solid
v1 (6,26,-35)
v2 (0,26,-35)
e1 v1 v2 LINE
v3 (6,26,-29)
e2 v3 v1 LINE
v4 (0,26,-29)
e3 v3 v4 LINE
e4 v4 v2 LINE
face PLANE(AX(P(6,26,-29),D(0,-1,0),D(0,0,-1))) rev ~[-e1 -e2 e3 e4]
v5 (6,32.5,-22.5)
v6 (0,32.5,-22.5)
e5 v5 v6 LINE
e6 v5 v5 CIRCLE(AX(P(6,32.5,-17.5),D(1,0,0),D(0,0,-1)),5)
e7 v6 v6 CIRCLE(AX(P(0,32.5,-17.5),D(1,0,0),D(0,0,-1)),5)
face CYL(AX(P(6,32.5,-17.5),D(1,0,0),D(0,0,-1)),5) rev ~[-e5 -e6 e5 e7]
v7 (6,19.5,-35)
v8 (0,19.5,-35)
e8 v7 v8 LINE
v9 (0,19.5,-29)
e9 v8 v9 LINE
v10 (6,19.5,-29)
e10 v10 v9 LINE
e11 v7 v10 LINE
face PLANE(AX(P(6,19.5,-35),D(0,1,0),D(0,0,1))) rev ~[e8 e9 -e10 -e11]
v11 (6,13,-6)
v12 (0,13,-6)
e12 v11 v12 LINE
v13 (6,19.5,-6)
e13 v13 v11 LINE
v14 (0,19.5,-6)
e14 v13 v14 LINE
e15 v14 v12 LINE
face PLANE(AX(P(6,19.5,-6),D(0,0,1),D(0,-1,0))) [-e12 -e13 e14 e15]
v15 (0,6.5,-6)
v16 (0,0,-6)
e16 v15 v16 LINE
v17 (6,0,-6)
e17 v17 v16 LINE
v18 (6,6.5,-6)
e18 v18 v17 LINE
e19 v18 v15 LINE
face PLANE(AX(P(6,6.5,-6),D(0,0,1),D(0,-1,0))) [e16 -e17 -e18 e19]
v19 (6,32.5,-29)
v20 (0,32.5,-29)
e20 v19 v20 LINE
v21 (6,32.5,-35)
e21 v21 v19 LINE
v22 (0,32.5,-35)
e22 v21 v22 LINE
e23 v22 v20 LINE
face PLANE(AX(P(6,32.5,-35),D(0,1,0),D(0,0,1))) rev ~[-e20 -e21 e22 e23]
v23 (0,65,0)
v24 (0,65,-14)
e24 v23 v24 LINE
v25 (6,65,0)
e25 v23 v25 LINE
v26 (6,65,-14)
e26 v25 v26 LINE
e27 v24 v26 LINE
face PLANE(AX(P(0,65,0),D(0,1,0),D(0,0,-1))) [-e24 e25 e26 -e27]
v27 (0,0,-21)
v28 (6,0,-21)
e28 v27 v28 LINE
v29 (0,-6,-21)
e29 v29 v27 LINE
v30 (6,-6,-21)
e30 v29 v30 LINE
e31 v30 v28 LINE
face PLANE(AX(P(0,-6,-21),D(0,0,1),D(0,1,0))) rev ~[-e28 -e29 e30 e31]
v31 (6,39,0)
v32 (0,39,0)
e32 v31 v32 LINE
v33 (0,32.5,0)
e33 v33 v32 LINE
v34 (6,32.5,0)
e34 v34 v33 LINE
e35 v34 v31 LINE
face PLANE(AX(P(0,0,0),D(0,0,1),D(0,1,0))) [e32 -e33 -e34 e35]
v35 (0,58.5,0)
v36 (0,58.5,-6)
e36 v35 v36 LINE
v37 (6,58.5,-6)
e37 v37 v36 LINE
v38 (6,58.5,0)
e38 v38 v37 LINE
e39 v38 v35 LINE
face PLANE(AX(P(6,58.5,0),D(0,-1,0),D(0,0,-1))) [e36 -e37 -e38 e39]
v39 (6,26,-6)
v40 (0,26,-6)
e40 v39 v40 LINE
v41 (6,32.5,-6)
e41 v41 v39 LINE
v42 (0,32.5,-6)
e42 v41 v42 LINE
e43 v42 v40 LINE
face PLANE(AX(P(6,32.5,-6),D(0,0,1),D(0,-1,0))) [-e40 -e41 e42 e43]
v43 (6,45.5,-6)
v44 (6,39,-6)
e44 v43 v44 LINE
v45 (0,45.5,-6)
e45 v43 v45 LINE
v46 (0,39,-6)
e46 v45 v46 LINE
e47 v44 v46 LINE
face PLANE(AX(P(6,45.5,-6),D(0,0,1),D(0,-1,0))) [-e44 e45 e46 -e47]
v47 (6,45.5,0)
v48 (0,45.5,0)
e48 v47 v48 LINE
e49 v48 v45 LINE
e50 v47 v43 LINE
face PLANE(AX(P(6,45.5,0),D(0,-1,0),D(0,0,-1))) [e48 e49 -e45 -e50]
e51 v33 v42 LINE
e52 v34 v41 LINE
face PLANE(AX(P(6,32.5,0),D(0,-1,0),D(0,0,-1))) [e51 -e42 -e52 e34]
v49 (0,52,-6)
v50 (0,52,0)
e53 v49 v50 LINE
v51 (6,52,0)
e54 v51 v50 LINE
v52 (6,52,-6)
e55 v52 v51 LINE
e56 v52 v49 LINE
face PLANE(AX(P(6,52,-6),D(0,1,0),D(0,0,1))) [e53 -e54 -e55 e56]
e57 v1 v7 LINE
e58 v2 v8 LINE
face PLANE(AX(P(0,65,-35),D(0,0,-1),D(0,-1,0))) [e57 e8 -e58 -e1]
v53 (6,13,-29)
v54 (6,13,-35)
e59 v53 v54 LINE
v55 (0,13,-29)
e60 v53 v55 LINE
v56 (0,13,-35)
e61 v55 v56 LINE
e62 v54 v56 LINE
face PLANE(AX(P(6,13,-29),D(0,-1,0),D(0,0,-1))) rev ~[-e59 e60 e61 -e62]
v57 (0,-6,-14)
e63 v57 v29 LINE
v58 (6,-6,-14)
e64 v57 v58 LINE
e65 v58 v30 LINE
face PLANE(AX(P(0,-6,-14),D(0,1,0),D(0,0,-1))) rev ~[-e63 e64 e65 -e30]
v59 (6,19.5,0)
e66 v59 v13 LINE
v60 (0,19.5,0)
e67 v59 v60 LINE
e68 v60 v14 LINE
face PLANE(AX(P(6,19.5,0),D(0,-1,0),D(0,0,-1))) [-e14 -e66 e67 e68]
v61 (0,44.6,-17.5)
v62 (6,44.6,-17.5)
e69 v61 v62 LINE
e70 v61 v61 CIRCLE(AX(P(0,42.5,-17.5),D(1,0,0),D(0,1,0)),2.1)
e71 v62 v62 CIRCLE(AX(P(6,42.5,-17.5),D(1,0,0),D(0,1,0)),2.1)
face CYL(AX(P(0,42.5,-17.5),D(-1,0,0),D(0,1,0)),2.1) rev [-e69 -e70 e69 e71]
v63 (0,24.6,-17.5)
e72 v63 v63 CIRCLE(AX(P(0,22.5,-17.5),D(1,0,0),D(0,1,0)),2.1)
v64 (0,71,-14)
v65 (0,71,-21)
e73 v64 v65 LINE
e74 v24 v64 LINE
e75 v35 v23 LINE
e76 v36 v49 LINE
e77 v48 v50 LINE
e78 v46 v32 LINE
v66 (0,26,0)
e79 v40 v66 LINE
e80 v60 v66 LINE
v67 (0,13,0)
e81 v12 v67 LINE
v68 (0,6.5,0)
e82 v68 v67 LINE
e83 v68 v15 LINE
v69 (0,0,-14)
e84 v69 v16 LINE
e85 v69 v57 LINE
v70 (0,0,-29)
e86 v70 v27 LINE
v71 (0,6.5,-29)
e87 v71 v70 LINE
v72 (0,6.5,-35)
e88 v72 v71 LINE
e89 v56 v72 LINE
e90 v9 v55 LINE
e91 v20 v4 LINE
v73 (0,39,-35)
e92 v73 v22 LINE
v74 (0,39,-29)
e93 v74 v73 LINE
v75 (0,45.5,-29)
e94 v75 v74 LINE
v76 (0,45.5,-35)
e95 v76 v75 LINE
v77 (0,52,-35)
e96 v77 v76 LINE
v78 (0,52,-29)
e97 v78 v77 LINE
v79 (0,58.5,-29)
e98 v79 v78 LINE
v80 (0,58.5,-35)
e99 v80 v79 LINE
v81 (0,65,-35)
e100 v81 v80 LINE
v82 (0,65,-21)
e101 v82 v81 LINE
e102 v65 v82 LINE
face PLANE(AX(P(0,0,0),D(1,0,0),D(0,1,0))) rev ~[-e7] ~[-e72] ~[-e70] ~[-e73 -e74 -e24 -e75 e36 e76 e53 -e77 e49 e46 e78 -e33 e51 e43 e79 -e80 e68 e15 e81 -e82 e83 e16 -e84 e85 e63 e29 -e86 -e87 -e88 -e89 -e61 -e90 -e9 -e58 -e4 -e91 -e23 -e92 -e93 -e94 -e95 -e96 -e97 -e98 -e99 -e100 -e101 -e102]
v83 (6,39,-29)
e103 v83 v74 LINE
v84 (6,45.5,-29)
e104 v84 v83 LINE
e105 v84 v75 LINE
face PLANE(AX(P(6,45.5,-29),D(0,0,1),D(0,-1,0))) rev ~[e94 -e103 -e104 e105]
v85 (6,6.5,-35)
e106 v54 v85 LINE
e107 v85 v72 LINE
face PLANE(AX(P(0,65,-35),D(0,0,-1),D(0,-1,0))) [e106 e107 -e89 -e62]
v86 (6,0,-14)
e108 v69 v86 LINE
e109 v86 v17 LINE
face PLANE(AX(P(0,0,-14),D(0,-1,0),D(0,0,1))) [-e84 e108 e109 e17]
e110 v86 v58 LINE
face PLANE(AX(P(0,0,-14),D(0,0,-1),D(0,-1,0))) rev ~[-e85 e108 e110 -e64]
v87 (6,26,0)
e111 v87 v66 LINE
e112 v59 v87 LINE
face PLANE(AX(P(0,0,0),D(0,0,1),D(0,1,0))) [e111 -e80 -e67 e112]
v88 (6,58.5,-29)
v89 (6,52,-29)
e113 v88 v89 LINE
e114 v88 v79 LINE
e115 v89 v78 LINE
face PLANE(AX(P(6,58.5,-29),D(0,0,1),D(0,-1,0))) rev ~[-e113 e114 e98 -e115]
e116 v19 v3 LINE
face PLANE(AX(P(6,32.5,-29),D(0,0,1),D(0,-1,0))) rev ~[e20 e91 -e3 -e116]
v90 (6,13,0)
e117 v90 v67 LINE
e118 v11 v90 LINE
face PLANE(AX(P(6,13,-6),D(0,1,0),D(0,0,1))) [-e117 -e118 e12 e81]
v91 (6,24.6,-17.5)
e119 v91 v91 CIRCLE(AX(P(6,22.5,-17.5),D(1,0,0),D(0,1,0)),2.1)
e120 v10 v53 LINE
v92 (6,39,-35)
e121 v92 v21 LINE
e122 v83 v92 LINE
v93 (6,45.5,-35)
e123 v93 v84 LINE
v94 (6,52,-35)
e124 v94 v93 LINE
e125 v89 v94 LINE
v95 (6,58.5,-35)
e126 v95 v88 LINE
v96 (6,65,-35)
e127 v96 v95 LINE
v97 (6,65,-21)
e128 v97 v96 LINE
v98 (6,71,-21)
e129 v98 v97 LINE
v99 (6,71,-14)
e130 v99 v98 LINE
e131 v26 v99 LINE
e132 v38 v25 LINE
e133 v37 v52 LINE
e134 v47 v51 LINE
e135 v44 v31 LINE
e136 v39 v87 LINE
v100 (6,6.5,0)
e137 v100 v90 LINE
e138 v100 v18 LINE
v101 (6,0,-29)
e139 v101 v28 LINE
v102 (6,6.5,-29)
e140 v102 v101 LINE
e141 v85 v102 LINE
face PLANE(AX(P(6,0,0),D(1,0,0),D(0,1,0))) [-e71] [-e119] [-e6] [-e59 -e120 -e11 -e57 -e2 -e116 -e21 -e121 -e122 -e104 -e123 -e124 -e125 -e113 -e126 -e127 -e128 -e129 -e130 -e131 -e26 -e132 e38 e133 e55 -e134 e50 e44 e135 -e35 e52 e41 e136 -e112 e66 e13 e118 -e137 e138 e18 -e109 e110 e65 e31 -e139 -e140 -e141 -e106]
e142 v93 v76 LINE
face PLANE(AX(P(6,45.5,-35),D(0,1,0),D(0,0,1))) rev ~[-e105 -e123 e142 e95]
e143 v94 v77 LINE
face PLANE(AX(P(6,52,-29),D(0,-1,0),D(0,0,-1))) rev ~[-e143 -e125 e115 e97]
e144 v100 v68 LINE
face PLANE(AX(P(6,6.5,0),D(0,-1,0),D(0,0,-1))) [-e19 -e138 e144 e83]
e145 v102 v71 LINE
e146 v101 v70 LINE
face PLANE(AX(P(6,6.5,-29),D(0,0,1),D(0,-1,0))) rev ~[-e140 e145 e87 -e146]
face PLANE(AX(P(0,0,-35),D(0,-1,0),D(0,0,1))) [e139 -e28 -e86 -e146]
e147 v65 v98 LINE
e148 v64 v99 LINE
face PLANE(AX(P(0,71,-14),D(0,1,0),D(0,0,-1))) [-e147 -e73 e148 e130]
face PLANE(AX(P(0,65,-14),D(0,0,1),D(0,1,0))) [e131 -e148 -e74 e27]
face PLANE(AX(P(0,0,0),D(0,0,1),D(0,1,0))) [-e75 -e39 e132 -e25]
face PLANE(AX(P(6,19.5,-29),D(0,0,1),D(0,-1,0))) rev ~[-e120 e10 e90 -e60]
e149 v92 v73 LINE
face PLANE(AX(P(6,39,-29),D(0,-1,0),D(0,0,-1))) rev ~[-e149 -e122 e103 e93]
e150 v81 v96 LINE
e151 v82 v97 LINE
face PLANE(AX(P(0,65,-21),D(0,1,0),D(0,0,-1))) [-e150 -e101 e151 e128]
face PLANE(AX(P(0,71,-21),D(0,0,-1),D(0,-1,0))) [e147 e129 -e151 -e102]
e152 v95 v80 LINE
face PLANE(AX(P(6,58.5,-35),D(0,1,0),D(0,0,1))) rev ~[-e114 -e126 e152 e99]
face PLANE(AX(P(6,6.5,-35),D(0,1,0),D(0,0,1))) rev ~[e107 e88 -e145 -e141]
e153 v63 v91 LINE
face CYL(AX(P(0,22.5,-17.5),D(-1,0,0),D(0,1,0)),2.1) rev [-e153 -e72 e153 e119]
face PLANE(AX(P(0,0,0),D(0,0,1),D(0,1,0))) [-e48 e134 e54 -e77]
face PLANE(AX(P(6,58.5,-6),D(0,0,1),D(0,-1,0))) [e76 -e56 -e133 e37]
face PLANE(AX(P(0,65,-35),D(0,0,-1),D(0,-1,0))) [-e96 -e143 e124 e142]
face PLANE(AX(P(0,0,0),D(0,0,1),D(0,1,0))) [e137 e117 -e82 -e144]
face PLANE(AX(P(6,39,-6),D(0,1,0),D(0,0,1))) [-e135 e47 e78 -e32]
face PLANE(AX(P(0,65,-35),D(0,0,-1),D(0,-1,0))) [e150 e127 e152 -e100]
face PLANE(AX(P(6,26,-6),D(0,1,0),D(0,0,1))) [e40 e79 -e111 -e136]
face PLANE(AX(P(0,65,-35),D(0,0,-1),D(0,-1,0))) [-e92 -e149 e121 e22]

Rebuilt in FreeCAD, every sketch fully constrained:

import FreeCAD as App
import Part
import Sketcher
Q = App.Units.Quantity


def add_polygon(sketch, points):
    """Adds a closed chain of lines whose ends are joined by coincident constraints."""
    first, n = sketch.GeometryCount, len(points)
    for a, b in zip(points, points[1:] + points[:1]):
        sketch.addGeometry(Part.LineSegment(App.Vector(*a, 0), App.Vector(*b, 0)), False)
    for i in range(n):
        sketch.addConstraint(Sketcher.Constraint("Coincident", first + i, 2, first + (i + 1) % n, 1))

doc = App.newDocument("Part")
body = doc.addObject("PartDesign::Body", "Body")

# Sketch on YZ plane
sketch1 = doc.addObject("Sketcher::SketchObject", "Sketch")
body.addObject(sketch1)
sketch1.AttachmentSupport = (doc.YZ_Plane, [""])
sketch1.MapMode = "FlatFace"
add_polygon(sketch1, [(65, 0), (0, 0), (0, -14), (-6, -14), (-6, -21), (0, -21), (0, -35), (65, -35), (65, -21), (71, -21), (71, -14), (65, -14)])  # lines 0-11
sketch1.addGeometry(Part.Circle(App.Vector(22.5, -17.5, 0), App.Vector(0, 0, 1), 2.1), False)  # 12
sketch1.addGeometry(Part.Circle(App.Vector(42.5, -17.5, 0), App.Vector(0, 0, 1), 2.1), False)  # 13
sketch1.addConstraint(Sketcher.Constraint("Horizontal", 0))
sketch1.addConstraint(Sketcher.Constraint("Vertical", 1))
sketch1.addConstraint(Sketcher.Constraint("Horizontal", 2))
sketch1.addConstraint(Sketcher.Constraint("Vertical", 3))
sketch1.addConstraint(Sketcher.Constraint("Horizontal", 4))
sketch1.addConstraint(Sketcher.Constraint("Vertical", 5))
sketch1.addConstraint(Sketcher.Constraint("Horizontal", 6))
sketch1.addConstraint(Sketcher.Constraint("Vertical", 7))
sketch1.addConstraint(Sketcher.Constraint("Horizontal", 8))
sketch1.addConstraint(Sketcher.Constraint("Vertical", 9))
sketch1.addConstraint(Sketcher.Constraint("Horizontal", 10))
sketch1.addConstraint(Sketcher.Constraint("Vertical", 11))
sketch1.addConstraint(Sketcher.Constraint("Coincident", 0, 2, -1, 1))
sketch1.addConstraint(Sketcher.Constraint("Equal", 12, 13))
sketch1.addConstraint(Sketcher.Constraint("PointOnObject", 4, 2, -2))
sketch1.addConstraint(Sketcher.Constraint("Horizontal", 12, 3, 13, 3))
sketch1.addConstraint(Sketcher.Constraint("Horizontal", 4, 2, 7, 2))
sketch1.addConstraint(Sketcher.Constraint("Horizontal", 2, 2, 9, 2))
sketch1.addConstraint(Sketcher.Constraint("Vertical", 7, 2, 10, 2))
sketch1.addConstraint(Sketcher.Constraint("Equal", 4, 8))
sketch1.addConstraint(Sketcher.Constraint("Equal", 1, 5))
sketch1.addConstraint(Sketcher.Constraint("Diameter", 12, Q("4.2 mm")))
sketch1.addConstraint(Sketcher.Constraint("DistanceX", 0, 2, 0, 1, Q("65 mm")))
sketch1.addConstraint(Sketcher.Constraint("DistanceX", 2, 2, 2, 1, Q("6 mm")))
sketch1.addConstraint(Sketcher.Constraint("DistanceY", 3, 2, 3, 1, Q("7 mm")))
sketch1.addConstraint(Sketcher.Constraint("DistanceY", 5, 2, -1, 1, Q("35 mm")))
sketch1.addConstraint(Sketcher.Constraint("DistanceX", 12, 3, 13, 3, Q("20 mm")))
sketch1.addConstraint(Sketcher.Constraint("DistanceX", -1, 1, 12, 3, Q("22.5 mm")))
sketch1.addConstraint(Sketcher.Constraint("DistanceY", 12, 3, -1, 1, Q("17.5 mm")))
pad1 = doc.addObject("PartDesign::Pad", "Pad")
body.addObject(pad1)
pad1.Profile = sketch1
pad1.Length = 6

# Sketch on YZ plane
sketch2 = doc.addObject("Sketcher::SketchObject", "Sketch001")
body.addObject(sketch2)
sketch2.AttachmentSupport = (doc.YZ_Plane, [""])
sketch2.MapMode = "FlatFace"
sketch2.AttachmentOffset = App.Placement(App.Vector(0, 0, 6), App.Rotation())
add_polygon(sketch2, [(58.5, -6), (58.5, 0), (52, 0), (52, -6)])  # lines 0-3
add_polygon(sketch2, [(52, -29), (52, -35), (58.5, -35), (58.5, -29)])  # lines 4-7
sketch2.addConstraint(Sketcher.Constraint("Vertical", 0))
sketch2.addConstraint(Sketcher.Constraint("Horizontal", 1))
sketch2.addConstraint(Sketcher.Constraint("Vertical", 2))
sketch2.addConstraint(Sketcher.Constraint("Horizontal", 3))
sketch2.addConstraint(Sketcher.Constraint("Vertical", 4))
sketch2.addConstraint(Sketcher.Constraint("Horizontal", 5))
sketch2.addConstraint(Sketcher.Constraint("Vertical", 6))
sketch2.addConstraint(Sketcher.Constraint("Horizontal", 7))
sketch2.addConstraint(Sketcher.Constraint("PointOnObject", 0, 2, -1))
sketch2.addConstraint(Sketcher.Constraint("Vertical", 2, 2, 4, 2))
sketch2.addConstraint(Sketcher.Constraint("Vertical", 3, 2, 5, 2))
sketch2.addConstraint(Sketcher.Constraint("Equal", 2, 4))
sketch2.addConstraint(Sketcher.Constraint("DistanceY", 0, 1, 0, 2, Q("6 mm")))
sketch2.addConstraint(Sketcher.Constraint("DistanceX", 1, 2, 1, 1, Q("6.5 mm")))
sketch2.addConstraint(Sketcher.Constraint("DistanceX", -1, 1, 1, 2, Q("52 mm")))
sketch2.addConstraint(Sketcher.Constraint("DistanceY", 4, 2, -1, 1, Q("35 mm")))
pocket1 = doc.addObject("PartDesign::Pocket", "Pocket")
body.addObject(pocket1)
pocket1.Profile = sketch2
pocket1.Length = 10
doc.recompute()

linearpattern = doc.addObject("PartDesign::LinearPattern", "LinearPattern")
body.addObject(linearpattern)
linearpattern.Originals = [pocket1]
linearpattern.Direction = (doc.Y_Axis, [""])
linearpattern.Mode = "offset"
linearpattern.Offset = 13
linearpattern.Occurrences = 5
linearpattern.Reversed = True
body.Tip = linearpattern

# Sketch on YZ plane
sketch3 = doc.addObject("Sketcher::SketchObject", "Sketch002")
body.addObject(sketch3)
sketch3.AttachmentSupport = (doc.YZ_Plane, [""])
sketch3.MapMode = "FlatFace"
sketch3.AttachmentOffset = App.Placement(App.Vector(0, 0, 6), App.Rotation())
sketch3.addGeometry(Part.Circle(App.Vector(32.5, -17.5, 0), App.Vector(0, 0, 1), 5), False)
sketch3.addConstraint(Sketcher.Constraint("Diameter", 0, Q("10 mm")))
sketch3.addConstraint(Sketcher.Constraint("DistanceX", -1, 1, 0, 3, Q("32.5 mm")))
sketch3.addConstraint(Sketcher.Constraint("DistanceY", 0, 3, -1, 1, Q("17.5 mm")))
pocket2 = doc.addObject("PartDesign::Pocket", "Pocket001")
body.addObject(pocket2)
pocket2.Profile = sketch3
pocket2.Length = 10

doc.recompute()
